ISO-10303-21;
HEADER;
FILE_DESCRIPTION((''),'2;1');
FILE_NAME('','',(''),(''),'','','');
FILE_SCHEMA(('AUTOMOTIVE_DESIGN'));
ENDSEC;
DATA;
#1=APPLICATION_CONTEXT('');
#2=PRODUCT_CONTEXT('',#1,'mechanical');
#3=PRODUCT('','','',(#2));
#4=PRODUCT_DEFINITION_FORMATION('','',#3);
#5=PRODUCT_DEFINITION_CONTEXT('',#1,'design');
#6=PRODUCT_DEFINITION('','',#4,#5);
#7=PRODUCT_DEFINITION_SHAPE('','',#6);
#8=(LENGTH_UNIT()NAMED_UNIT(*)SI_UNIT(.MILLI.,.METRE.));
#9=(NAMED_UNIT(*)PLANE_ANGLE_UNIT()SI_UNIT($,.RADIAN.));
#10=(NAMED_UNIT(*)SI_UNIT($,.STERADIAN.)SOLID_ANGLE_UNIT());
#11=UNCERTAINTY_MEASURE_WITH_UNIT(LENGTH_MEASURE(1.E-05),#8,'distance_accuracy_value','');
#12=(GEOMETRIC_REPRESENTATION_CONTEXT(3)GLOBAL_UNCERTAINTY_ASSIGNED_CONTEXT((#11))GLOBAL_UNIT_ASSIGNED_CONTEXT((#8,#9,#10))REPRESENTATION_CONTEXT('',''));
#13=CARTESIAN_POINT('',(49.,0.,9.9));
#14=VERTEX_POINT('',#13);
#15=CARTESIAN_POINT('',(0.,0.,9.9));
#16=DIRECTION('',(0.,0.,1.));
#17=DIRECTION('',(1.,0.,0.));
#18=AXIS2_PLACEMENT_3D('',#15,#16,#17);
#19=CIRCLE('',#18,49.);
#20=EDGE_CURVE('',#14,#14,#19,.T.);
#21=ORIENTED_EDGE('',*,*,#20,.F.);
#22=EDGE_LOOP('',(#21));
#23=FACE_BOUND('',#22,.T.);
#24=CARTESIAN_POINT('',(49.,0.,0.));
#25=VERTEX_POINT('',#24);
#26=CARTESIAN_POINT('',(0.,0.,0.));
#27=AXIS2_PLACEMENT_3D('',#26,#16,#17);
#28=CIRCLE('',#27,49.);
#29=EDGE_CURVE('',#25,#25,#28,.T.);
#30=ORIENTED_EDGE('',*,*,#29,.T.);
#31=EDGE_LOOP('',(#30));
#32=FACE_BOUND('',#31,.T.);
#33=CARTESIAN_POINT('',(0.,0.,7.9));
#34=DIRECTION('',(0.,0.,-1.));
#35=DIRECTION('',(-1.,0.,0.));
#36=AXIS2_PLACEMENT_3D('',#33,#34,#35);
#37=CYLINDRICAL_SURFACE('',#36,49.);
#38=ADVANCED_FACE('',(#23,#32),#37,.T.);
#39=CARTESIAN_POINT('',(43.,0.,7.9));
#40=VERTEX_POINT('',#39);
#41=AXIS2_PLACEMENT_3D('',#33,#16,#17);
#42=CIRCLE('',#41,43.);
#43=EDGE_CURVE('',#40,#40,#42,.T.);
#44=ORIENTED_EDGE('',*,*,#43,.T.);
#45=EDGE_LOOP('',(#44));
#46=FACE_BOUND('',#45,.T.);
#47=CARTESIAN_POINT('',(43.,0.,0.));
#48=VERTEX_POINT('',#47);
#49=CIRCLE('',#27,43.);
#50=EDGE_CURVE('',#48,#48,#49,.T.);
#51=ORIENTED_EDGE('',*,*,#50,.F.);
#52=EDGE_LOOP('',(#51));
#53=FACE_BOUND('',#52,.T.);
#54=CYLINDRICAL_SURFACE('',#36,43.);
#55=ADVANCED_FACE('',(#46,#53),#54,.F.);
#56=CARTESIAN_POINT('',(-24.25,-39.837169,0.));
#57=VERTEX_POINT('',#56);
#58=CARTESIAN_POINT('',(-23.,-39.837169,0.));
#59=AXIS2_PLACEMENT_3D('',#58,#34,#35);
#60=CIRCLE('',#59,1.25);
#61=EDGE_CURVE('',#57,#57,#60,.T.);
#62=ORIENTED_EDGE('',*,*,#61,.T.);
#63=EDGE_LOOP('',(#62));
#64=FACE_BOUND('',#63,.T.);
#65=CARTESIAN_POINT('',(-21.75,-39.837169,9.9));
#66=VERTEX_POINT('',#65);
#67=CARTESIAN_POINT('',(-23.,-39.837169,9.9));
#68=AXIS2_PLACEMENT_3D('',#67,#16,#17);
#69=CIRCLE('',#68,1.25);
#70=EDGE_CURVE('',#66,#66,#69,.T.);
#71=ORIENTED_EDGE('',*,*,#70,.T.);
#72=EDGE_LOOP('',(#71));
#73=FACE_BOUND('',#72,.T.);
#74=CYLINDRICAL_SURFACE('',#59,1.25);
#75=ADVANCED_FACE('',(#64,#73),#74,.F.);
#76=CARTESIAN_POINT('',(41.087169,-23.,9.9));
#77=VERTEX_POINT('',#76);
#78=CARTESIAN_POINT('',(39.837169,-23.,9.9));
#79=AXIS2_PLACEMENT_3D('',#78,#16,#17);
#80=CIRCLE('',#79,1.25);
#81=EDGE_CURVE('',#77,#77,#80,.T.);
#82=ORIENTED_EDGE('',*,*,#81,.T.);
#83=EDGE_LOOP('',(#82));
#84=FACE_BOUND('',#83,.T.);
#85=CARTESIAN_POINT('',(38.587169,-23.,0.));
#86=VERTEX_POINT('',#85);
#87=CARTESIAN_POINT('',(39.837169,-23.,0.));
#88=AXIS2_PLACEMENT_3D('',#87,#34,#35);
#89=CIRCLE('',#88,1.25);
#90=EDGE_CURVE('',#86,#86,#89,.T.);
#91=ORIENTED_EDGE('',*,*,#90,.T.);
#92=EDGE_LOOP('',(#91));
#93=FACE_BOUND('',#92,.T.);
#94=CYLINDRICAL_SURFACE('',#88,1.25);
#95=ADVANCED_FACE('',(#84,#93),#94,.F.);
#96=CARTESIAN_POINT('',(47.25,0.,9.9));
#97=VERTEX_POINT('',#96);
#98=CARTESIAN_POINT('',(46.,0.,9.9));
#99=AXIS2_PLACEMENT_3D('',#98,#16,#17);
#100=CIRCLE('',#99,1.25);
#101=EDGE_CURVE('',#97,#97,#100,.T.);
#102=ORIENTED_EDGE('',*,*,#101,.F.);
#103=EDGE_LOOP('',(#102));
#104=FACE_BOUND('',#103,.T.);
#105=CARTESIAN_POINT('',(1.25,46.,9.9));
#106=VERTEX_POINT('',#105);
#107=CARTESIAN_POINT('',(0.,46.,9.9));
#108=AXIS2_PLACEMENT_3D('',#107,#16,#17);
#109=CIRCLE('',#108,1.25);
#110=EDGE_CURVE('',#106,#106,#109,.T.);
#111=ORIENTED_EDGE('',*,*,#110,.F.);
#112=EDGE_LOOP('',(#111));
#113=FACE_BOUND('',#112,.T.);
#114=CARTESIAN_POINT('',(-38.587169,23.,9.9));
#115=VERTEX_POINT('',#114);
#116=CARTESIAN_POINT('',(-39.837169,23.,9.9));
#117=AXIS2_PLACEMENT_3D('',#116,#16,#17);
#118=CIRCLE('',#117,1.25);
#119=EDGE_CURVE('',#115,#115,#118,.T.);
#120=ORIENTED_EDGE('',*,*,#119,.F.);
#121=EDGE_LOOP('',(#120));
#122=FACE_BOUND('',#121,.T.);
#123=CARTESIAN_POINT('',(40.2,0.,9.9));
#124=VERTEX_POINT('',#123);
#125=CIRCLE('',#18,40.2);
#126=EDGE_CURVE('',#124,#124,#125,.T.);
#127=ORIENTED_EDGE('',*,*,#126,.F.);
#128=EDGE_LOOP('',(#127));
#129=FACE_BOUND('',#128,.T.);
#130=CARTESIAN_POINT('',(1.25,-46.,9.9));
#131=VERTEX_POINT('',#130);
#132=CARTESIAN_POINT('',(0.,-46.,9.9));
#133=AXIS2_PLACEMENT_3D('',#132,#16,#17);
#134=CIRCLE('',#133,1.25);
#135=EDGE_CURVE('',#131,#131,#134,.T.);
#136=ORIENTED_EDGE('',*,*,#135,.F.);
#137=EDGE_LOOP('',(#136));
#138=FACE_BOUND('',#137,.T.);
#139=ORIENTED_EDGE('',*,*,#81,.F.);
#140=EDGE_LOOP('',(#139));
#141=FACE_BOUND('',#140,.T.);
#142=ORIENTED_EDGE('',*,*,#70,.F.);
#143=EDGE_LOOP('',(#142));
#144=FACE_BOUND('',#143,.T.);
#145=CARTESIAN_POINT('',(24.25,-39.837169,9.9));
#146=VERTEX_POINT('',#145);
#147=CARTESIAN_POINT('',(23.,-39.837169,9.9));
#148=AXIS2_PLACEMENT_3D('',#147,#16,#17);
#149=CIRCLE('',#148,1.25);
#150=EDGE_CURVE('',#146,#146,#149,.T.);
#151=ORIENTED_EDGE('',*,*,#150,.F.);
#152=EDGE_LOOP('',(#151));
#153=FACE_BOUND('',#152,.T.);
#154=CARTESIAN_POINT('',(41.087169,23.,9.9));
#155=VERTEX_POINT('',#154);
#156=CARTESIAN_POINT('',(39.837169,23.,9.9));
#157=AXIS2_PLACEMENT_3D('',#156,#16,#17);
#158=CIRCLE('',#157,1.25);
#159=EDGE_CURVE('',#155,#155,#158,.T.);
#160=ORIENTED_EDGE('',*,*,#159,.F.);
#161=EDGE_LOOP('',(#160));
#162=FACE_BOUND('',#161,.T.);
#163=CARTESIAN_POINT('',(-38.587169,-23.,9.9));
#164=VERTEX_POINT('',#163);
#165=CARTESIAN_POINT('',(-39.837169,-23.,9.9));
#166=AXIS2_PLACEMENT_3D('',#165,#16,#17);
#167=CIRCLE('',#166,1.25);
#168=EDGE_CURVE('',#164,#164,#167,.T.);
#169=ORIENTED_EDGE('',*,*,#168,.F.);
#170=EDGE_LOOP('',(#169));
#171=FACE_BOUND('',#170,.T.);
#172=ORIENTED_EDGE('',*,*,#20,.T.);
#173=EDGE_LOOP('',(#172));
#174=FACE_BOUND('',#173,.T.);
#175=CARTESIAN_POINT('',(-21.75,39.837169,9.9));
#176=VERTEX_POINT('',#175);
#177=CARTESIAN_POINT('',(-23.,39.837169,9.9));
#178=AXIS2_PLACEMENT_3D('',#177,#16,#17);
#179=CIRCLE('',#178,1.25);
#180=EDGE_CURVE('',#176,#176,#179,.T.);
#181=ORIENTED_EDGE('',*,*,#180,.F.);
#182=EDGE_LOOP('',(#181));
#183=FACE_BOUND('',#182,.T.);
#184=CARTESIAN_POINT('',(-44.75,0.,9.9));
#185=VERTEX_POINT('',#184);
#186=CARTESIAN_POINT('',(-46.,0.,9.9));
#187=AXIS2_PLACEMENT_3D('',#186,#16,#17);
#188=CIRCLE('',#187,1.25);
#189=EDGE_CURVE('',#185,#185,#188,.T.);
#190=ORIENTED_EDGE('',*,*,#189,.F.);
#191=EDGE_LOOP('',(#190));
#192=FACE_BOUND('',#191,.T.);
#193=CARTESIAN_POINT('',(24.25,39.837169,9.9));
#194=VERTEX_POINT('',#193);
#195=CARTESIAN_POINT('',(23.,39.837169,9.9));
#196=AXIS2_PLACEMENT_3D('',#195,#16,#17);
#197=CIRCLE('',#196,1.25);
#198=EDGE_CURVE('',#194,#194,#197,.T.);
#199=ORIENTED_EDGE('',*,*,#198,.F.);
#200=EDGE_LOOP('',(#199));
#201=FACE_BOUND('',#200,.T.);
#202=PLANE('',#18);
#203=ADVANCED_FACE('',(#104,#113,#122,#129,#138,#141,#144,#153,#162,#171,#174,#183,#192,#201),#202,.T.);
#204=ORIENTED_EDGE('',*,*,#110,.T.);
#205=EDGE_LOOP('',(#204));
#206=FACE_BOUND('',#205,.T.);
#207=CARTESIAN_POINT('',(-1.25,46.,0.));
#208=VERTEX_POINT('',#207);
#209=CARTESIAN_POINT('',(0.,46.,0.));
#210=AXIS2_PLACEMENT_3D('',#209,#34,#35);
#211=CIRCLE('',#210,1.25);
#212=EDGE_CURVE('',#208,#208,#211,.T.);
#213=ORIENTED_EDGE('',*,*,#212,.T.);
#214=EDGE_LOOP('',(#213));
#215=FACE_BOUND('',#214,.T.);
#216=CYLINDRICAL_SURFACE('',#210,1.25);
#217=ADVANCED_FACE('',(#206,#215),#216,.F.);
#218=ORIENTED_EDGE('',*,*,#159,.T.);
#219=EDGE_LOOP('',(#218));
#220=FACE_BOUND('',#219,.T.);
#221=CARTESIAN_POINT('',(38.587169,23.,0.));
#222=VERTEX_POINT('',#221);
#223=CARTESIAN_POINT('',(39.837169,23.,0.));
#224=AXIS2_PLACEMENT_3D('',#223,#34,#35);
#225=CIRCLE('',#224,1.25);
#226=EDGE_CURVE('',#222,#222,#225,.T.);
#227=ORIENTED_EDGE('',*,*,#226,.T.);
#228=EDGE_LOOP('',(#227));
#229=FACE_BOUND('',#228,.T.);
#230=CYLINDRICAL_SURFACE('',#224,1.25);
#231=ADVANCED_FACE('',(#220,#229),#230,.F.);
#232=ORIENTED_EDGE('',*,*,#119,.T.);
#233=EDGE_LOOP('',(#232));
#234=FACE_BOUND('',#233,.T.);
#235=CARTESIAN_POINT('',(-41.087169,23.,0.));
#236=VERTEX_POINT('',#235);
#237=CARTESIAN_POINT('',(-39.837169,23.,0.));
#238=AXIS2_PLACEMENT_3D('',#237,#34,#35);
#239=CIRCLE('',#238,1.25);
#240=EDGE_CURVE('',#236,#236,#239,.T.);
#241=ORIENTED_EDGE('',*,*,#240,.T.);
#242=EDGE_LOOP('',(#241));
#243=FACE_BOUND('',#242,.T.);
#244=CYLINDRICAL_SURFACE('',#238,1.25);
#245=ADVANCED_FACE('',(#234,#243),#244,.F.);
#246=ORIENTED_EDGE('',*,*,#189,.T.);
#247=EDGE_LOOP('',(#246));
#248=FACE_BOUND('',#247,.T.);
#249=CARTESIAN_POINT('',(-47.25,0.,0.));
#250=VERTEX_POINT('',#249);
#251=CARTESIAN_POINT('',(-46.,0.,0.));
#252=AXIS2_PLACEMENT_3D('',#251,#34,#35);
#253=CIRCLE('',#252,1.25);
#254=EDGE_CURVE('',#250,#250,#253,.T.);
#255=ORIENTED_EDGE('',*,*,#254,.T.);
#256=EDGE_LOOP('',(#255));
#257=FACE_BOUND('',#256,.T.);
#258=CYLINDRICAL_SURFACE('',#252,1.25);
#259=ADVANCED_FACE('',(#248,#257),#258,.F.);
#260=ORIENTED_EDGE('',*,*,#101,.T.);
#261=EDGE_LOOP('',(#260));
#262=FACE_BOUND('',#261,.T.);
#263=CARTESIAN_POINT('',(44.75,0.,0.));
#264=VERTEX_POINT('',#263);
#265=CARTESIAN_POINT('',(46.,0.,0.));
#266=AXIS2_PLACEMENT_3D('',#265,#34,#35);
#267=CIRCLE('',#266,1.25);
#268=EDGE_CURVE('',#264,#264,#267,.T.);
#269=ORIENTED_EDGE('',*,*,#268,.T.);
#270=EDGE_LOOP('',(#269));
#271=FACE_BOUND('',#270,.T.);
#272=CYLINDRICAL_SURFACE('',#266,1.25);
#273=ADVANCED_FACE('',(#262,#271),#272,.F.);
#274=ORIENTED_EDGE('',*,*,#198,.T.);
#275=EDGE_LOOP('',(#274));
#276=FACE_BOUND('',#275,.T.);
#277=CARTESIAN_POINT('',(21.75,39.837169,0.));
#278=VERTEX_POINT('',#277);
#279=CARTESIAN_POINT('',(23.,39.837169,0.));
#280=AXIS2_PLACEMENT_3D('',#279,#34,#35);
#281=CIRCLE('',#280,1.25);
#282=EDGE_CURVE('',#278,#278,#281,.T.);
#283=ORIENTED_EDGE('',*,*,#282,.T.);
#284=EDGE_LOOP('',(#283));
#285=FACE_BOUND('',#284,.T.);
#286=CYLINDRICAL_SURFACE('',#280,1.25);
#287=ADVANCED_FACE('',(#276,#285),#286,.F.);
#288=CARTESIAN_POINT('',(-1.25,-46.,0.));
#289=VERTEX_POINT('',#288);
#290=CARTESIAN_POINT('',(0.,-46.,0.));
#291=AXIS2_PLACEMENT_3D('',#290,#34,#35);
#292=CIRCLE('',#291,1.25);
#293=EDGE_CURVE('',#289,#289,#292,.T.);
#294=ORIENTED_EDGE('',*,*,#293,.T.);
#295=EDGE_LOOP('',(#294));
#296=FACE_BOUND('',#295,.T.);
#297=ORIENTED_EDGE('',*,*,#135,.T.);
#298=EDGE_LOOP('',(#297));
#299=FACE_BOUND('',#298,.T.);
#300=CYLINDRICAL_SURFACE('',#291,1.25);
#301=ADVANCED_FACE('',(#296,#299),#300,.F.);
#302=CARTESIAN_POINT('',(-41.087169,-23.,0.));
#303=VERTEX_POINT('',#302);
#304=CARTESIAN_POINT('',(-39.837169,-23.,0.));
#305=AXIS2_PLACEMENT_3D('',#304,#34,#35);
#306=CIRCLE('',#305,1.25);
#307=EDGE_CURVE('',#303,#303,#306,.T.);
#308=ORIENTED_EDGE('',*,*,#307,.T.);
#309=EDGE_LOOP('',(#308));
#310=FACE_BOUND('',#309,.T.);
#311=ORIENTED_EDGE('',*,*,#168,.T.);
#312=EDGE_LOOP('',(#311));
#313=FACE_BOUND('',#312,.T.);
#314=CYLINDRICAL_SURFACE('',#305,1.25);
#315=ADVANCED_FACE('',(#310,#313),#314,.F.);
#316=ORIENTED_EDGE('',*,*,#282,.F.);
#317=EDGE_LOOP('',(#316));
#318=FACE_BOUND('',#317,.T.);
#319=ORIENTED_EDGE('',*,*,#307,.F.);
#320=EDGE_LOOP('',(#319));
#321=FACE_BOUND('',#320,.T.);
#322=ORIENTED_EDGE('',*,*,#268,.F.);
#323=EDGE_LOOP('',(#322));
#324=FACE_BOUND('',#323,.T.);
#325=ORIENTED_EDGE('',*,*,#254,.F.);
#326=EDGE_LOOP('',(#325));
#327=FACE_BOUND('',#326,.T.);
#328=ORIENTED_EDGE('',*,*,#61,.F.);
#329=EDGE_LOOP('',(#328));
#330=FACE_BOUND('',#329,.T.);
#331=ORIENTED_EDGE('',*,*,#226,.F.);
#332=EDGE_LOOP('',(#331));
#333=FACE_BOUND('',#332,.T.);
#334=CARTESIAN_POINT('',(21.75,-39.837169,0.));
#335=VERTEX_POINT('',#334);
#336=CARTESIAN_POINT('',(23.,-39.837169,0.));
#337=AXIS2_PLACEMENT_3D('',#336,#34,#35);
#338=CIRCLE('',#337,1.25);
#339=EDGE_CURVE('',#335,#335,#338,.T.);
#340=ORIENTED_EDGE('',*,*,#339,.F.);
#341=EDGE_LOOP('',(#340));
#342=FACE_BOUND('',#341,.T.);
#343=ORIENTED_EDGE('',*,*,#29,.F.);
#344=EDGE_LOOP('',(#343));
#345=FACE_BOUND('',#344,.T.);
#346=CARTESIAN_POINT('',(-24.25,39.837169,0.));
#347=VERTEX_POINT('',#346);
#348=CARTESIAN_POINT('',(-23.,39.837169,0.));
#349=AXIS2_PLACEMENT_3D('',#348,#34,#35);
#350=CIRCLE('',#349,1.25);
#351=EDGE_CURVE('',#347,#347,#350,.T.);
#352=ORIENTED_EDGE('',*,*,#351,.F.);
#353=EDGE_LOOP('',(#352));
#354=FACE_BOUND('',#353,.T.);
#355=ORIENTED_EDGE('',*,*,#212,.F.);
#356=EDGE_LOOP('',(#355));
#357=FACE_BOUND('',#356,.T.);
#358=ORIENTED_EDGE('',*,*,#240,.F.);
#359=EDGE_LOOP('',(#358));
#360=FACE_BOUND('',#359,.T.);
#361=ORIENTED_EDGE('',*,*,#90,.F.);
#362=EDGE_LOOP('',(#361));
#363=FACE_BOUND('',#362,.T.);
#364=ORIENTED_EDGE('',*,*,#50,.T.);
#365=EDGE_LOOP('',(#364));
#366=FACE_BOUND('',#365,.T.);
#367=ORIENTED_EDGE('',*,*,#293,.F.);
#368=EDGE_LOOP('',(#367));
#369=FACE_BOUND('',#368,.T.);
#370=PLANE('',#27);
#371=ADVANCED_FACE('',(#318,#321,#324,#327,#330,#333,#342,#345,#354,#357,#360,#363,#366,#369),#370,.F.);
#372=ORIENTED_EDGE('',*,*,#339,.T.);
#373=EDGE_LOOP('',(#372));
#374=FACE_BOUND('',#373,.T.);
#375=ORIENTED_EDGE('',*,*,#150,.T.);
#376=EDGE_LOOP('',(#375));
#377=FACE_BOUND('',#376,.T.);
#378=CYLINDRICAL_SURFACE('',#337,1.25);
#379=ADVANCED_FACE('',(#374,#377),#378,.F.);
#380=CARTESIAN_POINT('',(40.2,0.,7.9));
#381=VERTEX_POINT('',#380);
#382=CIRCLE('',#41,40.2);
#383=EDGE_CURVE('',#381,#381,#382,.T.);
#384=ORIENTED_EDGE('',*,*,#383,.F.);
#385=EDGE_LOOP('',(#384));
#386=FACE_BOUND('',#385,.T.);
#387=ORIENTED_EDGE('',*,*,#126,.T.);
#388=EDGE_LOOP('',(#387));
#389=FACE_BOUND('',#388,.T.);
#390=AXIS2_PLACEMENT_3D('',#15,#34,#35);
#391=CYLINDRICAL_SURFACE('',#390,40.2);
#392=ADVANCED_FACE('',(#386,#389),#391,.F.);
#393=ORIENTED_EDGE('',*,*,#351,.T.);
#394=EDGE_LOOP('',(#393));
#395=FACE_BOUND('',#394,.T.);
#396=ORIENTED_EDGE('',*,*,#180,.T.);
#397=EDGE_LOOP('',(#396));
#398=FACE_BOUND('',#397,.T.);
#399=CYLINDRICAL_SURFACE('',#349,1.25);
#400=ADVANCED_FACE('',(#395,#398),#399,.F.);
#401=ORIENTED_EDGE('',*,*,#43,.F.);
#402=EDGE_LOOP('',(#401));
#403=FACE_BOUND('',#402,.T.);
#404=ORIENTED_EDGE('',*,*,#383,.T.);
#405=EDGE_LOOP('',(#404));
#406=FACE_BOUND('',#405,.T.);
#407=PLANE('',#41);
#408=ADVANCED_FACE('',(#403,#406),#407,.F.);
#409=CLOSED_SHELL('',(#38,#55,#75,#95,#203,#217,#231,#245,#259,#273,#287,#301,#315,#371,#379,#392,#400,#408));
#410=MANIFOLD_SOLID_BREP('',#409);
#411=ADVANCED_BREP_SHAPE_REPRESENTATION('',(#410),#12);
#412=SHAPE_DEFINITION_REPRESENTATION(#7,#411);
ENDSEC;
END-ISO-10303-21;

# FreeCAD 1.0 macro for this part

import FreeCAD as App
import Part
import Sketcher

V = App.Vector

doc = App.newDocument("Part")
body = doc.addObject("PartDesign::Body", "Body")

# Sketch on XY plane
sketch1 = doc.addObject("Sketcher::SketchObject", "Sketch")
body.addObject(sketch1)
sketch1.AttachmentSupport = (doc.XY_Plane, [""])
sketch1.MapMode = "FlatFace"
sketch1.addGeometry([
    Part.Circle(V(0, 0, 0), V(0, 0, 1), 49),
    Part.Circle(V(0, 0, 0), V(0, 0, 1), 43),
], False)
sketch1.addConstraint([
    Sketcher.Constraint("Coincident", 0, 3, -1, 1),
    Sketcher.Constraint("Coincident", 1, 3, -1, 1),
    Sketcher.Constraint("Diameter", 0, 98.0),
    Sketcher.Constraint("Diameter", 1, 86.0),
])
pad1 = doc.addObject("PartDesign::Pad", "Pad")
body.addObject(pad1)
pad1.Profile = sketch1
pad1.Length = 7.9

# Sketch on XY plane
sketch2 = doc.addObject("Sketcher::SketchObject", "Sketch001")
body.addObject(sketch2)
sketch2.AttachmentSupport = (doc.XY_Plane, [""])
sketch2.MapMode = "FlatFace"
sketch2.AttachmentOffset = App.Placement(V(0, 0, 7.9), App.Rotation())
sketch2.addGeometry([
    Part.Circle(V(0, 0, 0), V(0, 0, 1), 49),
    Part.Circle(V(0, 0, 0), V(0, 0, 1), 40),
], False)
sketch2.addConstraint([
    Sketcher.Constraint("Coincident", 0, 3, -1, 1),
    Sketcher.Constraint("Coincident", 1, 3, -1, 1),
    Sketcher.Constraint("Diameter", 0, 98.0),
    Sketcher.Constraint("Diameter", 1, 80.4),
])
pad2 = doc.addObject("PartDesign::Pad", "Pad001")
body.addObject(pad2)
pad2.Profile = sketch2
pad2.Length = 2

# Sketch on XY plane
sketch3 = doc.addObject("Sketcher::SketchObject", "Sketch002")
body.addObject(sketch3)
sketch3.AttachmentSupport = (doc.XY_Plane, [""])
sketch3.MapMode = "FlatFace"
sketch3.addGeometry(Part.Circle(V(0, 46, 0), V(0, 0, 1), 1.2), False)
sketch3.addConstraint([
    Sketcher.Constraint("PointOnObject", 0, 3, -2),
    Sketcher.Constraint("Diameter", 0, 2.5),
    Sketcher.Constraint("DistanceY", -1, 1, 0, 3, 46.0),
])
doc.recompute()
hole = doc.addObject("PartDesign::Hole", "Hole")
body.addObject(hole)
hole.Profile = sketch3
hole.ThreadType = "None"
hole.Diameter = 2.5
hole.DepthType = "ThroughAll"
hole.Reversed = True
doc.recompute()

polarpattern = doc.addObject("PartDesign::PolarPattern", "PolarPattern")
body.addObject(polarpattern)
polarpattern.Originals = [hole]
polarpattern.Axis = (doc.Z_Axis, [""])
polarpattern.Angle = 360
polarpattern.Occurrences = 12
body.Tip = polarpattern

doc.recompute()
